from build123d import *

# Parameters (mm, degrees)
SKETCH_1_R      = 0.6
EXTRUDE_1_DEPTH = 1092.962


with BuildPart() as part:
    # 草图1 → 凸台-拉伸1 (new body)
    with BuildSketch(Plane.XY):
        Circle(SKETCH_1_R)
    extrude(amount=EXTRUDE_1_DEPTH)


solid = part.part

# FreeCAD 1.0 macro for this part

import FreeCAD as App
import Part
import Sketcher

V = App.Vector

doc = App.newDocument("Part")
params = doc.addObject("Spreadsheet::Sheet", "Params")
for row, (alias, value) in enumerate([
    ("sketch1_diameter", "1.2 mm"),
    ("pad1_length", "1092.962 mm"),
], start=1):
    params.set(f"A{row}", alias)
    params.set(f"B{row}", "=" + value)
    params.setAlias(f"B{row}", alias)

body = doc.addObject("PartDesign::Body", "Body")

# Sketch on XY plane
sketch1 = body.newObject("Sketcher::SketchObject", "Sketch")
sketch1.AttachmentSupport = (doc.getObject("XY_Plane"), [""])
sketch1.MapMode = "FlatFace"
sketch1.addGeometry(Part.Circle(V(0, 0, 0), V(0, 0, 1), 0.6), False)
sketch1.addConstraint([
    Sketcher.Constraint("Coincident", 0, 3, -1, 1),
    Sketcher.Constraint("Diameter", 0, 1.2),
])
sketch1.setExpression("Constraints[1]", "Params.sketch1_diameter")
pad1 = body.newObject("PartDesign::Pad", "Pad")
pad1.Profile = sketch1
pad1.setExpression("Length", "Params.pad1_length")

doc.recompute()
